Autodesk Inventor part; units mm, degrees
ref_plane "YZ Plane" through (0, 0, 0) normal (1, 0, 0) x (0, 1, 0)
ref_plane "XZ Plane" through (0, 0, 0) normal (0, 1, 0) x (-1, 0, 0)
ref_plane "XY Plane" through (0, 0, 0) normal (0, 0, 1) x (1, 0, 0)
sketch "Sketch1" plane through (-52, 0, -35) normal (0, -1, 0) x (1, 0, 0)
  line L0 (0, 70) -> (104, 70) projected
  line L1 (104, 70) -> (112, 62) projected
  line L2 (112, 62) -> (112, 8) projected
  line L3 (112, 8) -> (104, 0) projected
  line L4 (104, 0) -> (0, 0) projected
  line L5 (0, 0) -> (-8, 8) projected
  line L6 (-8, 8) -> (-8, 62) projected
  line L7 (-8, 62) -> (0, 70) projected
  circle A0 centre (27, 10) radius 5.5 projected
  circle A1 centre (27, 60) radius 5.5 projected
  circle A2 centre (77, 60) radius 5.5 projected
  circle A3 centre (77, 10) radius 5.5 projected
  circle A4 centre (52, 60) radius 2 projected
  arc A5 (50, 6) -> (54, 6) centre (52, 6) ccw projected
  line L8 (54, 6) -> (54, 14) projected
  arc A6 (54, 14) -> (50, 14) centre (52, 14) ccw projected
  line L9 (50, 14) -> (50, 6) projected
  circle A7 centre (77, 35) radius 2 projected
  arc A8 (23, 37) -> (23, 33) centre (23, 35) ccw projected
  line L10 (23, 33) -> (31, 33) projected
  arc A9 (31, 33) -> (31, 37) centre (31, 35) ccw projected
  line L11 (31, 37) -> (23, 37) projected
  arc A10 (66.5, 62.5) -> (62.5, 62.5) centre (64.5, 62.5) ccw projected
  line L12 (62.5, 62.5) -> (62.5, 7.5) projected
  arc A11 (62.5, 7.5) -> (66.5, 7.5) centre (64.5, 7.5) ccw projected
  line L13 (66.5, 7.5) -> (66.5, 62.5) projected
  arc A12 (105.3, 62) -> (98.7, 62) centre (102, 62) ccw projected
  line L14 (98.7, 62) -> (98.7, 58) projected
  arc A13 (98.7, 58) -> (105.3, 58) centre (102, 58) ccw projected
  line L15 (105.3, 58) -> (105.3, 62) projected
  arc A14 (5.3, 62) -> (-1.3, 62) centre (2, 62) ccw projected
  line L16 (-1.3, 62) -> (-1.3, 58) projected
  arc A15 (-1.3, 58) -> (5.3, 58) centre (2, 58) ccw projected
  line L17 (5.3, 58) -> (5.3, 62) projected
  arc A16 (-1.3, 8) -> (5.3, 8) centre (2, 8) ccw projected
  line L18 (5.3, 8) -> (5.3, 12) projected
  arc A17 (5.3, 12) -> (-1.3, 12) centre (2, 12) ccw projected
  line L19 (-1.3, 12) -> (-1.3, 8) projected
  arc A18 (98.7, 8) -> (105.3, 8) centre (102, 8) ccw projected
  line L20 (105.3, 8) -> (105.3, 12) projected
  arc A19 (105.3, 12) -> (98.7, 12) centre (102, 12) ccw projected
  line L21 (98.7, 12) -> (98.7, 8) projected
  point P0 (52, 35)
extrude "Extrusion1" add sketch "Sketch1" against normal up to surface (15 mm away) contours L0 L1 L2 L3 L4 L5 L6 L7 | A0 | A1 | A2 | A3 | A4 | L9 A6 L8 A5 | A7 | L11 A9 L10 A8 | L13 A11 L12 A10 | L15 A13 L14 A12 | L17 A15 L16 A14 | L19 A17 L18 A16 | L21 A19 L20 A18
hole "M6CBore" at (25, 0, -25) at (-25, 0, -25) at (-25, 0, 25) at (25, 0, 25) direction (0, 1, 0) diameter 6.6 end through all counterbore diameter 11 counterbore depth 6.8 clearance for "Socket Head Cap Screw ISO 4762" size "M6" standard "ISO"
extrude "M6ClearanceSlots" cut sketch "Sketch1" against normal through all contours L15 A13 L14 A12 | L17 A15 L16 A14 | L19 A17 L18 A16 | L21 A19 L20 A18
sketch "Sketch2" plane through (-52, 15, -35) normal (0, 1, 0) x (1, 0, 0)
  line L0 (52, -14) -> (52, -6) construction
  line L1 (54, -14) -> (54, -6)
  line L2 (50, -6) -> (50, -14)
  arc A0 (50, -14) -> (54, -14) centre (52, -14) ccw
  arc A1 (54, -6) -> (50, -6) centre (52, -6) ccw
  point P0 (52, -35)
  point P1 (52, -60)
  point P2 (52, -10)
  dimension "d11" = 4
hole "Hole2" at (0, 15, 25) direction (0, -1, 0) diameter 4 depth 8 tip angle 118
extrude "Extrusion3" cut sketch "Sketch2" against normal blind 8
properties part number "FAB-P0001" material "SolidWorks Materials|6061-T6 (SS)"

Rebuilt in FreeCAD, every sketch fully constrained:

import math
import FreeCAD as App
import Part
import Sketcher
from FreeCAD import Vector

doc = App.newDocument("Part")
body = doc.addObject("PartDesign::Body", "Body")

# Sketch on XZ plane
sketch1 = body.newObject("Sketcher::SketchObject", "Sketch")
sketch1.AttachmentSupport = (doc.getObject("XZ_Plane"), [""])
sketch1.MapMode = "FlatFace"
sketch1.addGeometry([
    Part.LineSegment(Vector(52, 35, 0), Vector(-52, 35, 0)),  # 0
    Part.LineSegment(Vector(-52, 35, 0), Vector(-60, 27, 0)),  # 1
    Part.LineSegment(Vector(-60, 27, 0), Vector(-60, -27, 0)),  # 2
    Part.LineSegment(Vector(-60, -27, 0), Vector(-52, -35, 0)),  # 3
    Part.LineSegment(Vector(-52, -35, 0), Vector(52, -35, 0)),  # 4
    Part.LineSegment(Vector(52, -35, 0), Vector(60, -27, 0)),  # 5
    Part.LineSegment(Vector(60, -27, 0), Vector(60, 27, 0)),  # 6
    Part.LineSegment(Vector(60, 27, 0), Vector(52, 35, 0)),  # 7
], False)
sketch1.addConstraint([
    Sketcher.Constraint("Coincident", 0, 2, 1, 1),
    Sketcher.Constraint("Coincident", 1, 2, 2, 1),
    Sketcher.Constraint("Coincident", 2, 2, 3, 1),
    Sketcher.Constraint("Coincident", 3, 2, 4, 1),
    Sketcher.Constraint("Coincident", 4, 2, 5, 1),
    Sketcher.Constraint("Coincident", 5, 2, 6, 1),
    Sketcher.Constraint("Coincident", 6, 2, 7, 1),
    Sketcher.Constraint("Coincident", 7, 2, 0, 1),
    Sketcher.Constraint("Horizontal", 0),
    Sketcher.Constraint("Vertical", 2),
    Sketcher.Constraint("Horizontal", 4),
    Sketcher.Constraint("Vertical", 6),
    Sketcher.Constraint("Symmetric", 0, 2, 4, 2, -1, 1),
    Sketcher.Constraint("Symmetric", 1, 2, 5, 2, -1, 1),
    Sketcher.Constraint("Perpendicular", 1, 3),
    Sketcher.Constraint("Perpendicular", 5, 7),
    Sketcher.Constraint("Horizontal", 2, 2, 5, 2),
    Sketcher.Constraint("Horizontal", 1, 2, 6, 2),
    Sketcher.Constraint("Vertical", 0, 2, 3, 2),
    Sketcher.Constraint("DistanceX", 0, 2, 0, 1, 104.0),
    Sketcher.Constraint("DistanceY", 2, 2, 2, 1, 54.0),
    Sketcher.Constraint("DistanceY", -1, 1, 0, 2, 35.0),
])
pad1 = body.newObject("PartDesign::Pad", "Pad")
pad1.Profile = sketch1
pad1.Length = 15
pad1.Reversed = True

# Sketch on XZ plane
sketch2 = body.newObject("Sketcher::SketchObject", "Sketch001")
sketch2.AttachmentSupport = (doc.getObject("XZ_Plane"), [""])
sketch2.MapMode = "FlatFace"
sketch2.addGeometry([
    Part.Circle(Vector(25, -25, 0), Vector(0, 0, 1), 3.3),
    Part.Circle(Vector(-25, -25, 0), Vector(0, 0, 1), 3.3),
    Part.Circle(Vector(-25, 25, 0), Vector(0, 0, 1), 3.3),
    Part.Circle(Vector(25, 25, 0), Vector(0, 0, 1), 3.3),
], False)
sketch2.addConstraint([
    Sketcher.Constraint("Equal", 0, 1),
    Sketcher.Constraint("Equal", 1, 2),
    Sketcher.Constraint("Equal", 2, 3),
    Sketcher.Constraint("Symmetric", 0, 3, 2, 3, -1, 1),
    Sketcher.Constraint("Symmetric", 1, 3, 3, 3, -1, 1),
    Sketcher.Constraint("Symmetric", 0, 3, 1, 3, -2),
    Sketcher.Constraint("Diameter", 0, 6.6),
    Sketcher.Constraint("DistanceX", -1, 1, 0, 3, 25.0),
    Sketcher.Constraint("DistanceY", 0, 3, -1, 1, 25.0),
])
doc.recompute()
hole = body.newObject("PartDesign::Hole", "Hole")
hole.Profile = sketch2
hole.ThreadType = "None"
hole.Diameter = 6.6
hole.DepthType = "ThroughAll"
hole.HoleCutType = "Counterbore"
hole.HoleCutDiameter = 11
hole.HoleCutDepth = 6.8

# Sketch on XZ plane
sketch3 = body.newObject("Sketcher::SketchObject", "Sketch002")
sketch3.AttachmentSupport = (doc.getObject("XZ_Plane"), [""])
sketch3.MapMode = "FlatFace"
sketch3.addGeometry([
    Part.LineSegment(Vector(53.3, 23, 0), Vector(53.3, 27, 0)),  # 0
    Part.ArcOfCircle(Part.Circle(Vector(50, 27, 0), Vector(0, 0, 1), 3.3), math.radians(0), math.radians(180)),  # 1
    Part.LineSegment(Vector(46.7, 27, 0), Vector(46.7, 23, 0)),  # 2
    Part.ArcOfCircle(Part.Circle(Vector(50, 23, 0), Vector(0, 0, 1), 3.3), math.radians(180), math.radians(360)),  # 3
    Part.LineSegment(Vector(-46.7, 23, 0), Vector(-46.7, 27, 0)),  # 4
    Part.ArcOfCircle(Part.Circle(Vector(-50, 27, 0), Vector(0, 0, 1), 3.3), math.radians(0), math.radians(180)),  # 5
    Part.LineSegment(Vector(-53.3, 27, 0), Vector(-53.3, 23, 0)),  # 6
    Part.ArcOfCircle(Part.Circle(Vector(-50, 23, 0), Vector(0, 0, 1), 3.3), math.radians(180), math.radians(360)),  # 7
    Part.LineSegment(Vector(-53.3, -23, 0), Vector(-53.3, -27, 0)),  # 8
    Part.ArcOfCircle(Part.Circle(Vector(-50, -27, 0), Vector(0, 0, 1), 3.3), math.radians(180), math.radians(360)),  # 9
    Part.LineSegment(Vector(-46.7, -27, 0), Vector(-46.7, -23, 0)),  # 10
    Part.ArcOfCircle(Part.Circle(Vector(-50, -23, 0), Vector(0, 0, 1), 3.3), math.radians(0), math.radians(180)),  # 11
    Part.LineSegment(Vector(46.7, -23, 0), Vector(46.7, -27, 0)),  # 12
    Part.ArcOfCircle(Part.Circle(Vector(50, -27, 0), Vector(0, 0, 1), 3.3), math.radians(180), math.radians(360)),  # 13
    Part.LineSegment(Vector(53.3, -27, 0), Vector(53.3, -23, 0)),  # 14
    Part.ArcOfCircle(Part.Circle(Vector(50, -23, 0), Vector(0, 0, 1), 3.3), math.radians(0), math.radians(180)),  # 15
], False)
sketch3.addConstraint([
    Sketcher.Constraint("Tangent", 0, 2, 1, 1),
    Sketcher.Constraint("Tangent", 1, 2, 2, 1),
    Sketcher.Constraint("Tangent", 2, 2, 3, 1),
    Sketcher.Constraint("Tangent", 3, 2, 0, 1),
    Sketcher.Constraint("Tangent", 4, 2, 5, 1),
    Sketcher.Constraint("Tangent", 5, 2, 6, 1),
    Sketcher.Constraint("Tangent", 6, 2, 7, 1),
    Sketcher.Constraint("Tangent", 7, 2, 4, 1),
    Sketcher.Constraint("Tangent", 8, 2, 9, 1),
    Sketcher.Constraint("Tangent", 9, 2, 10, 1),
    Sketcher.Constraint("Tangent", 10, 2, 11, 1),
    Sketcher.Constraint("Tangent", 11, 2, 8, 1),
    Sketcher.Constraint("Tangent", 12, 2, 13, 1),
    Sketcher.Constraint("Tangent", 13, 2, 14, 1),
    Sketcher.Constraint("Tangent", 14, 2, 15, 1),
    Sketcher.Constraint("Tangent", 15, 2, 12, 1),
    Sketcher.Constraint("Vertical", 0),
    Sketcher.Constraint("Vertical", 2),
    Sketcher.Constraint("Vertical", 4),
    Sketcher.Constraint("Vertical", 6),
    Sketcher.Constraint("Vertical", 8),
    Sketcher.Constraint("Vertical", 10),
    Sketcher.Constraint("Vertical", 12),
    Sketcher.Constraint("Vertical", 14),
    Sketcher.Constraint("Equal", 3, 5),
    Sketcher.Constraint("Equal", 7, 9),
    Sketcher.Constraint("Equal", 11, 13),
    Sketcher.Constraint("Symmetric", 1, 3, 9, 3, -1, 1),
    Sketcher.Constraint("Symmetric", 5, 3, 13, 3, -1, 1),
    Sketcher.Constraint("Symmetric", 1, 3, 5, 3, -2),
    Sketcher.Constraint("Horizontal", 3, 3, 7, 3),
    Sketcher.Constraint("Horizontal", 11, 3, 15, 3),
    Sketcher.Constraint("Equal", 6, 8),
    Sketcher.Constraint("Radius", 1, 3.3),
    Sketcher.Constraint("DistanceY", 0, 1, 0, 2, 4.0),
    Sketcher.Constraint("DistanceX", -1, 1, 1, 3, 50.0),
    Sketcher.Constraint("DistanceY", -1, 1, 1, 3, 27.0),
])
pocket1 = body.newObject("PartDesign::Pocket", "Pocket")
pocket1.Profile = sketch3
pocket1.Type = "ThroughAll"

# Sketch on XZ plane
sketch4 = body.newObject("Sketcher::SketchObject", "Sketch003")
sketch4.AttachmentSupport = (doc.getObject("XZ_Plane"), [""])
sketch4.MapMode = "FlatFace"
sketch4.AttachmentOffset = App.Placement(Vector(0, 0, -15), App.Rotation())
sketch4.addGeometry(Part.Circle(Vector(0, 25, 0), Vector(0, 0, 1), 2), False)
sketch4.addConstraint([
    Sketcher.Constraint("PointOnObject", 0, 3, -2),
    Sketcher.Constraint("Diameter", 0, 4.0),
    Sketcher.Constraint("DistanceY", -1, 1, 0, 3, 25.0),
])
doc.recompute()
hole2 = body.newObject("PartDesign::Hole", "Hole001")
hole2.Profile = sketch4
hole2.ThreadType = "None"
hole2.Diameter = 4
hole2.DepthType = "Dimension"
hole2.Depth = 8
hole2.DrillPoint = "Angled"
hole2.DrillPointAngle = 118
hole2.Reversed = True

# Sketch on XZ plane
sketch5 = body.newObject("Sketcher::SketchObject", "Sketch004")
sketch5.AttachmentSupport = (doc.getObject("XZ_Plane"), [""])
sketch5.MapMode = "FlatFace"
sketch5.AttachmentOffset = App.Placement(Vector(0, 0, -15), App.Rotation())
sketch5.addGeometry([
    Part.ArcOfCircle(Part.Circle(Vector(0, -21, 0), Vector(0, 0, 1), 2), math.radians(0), math.radians(180)),
    Part.LineSegment(Vector(2, -21, 0), Vector(2, -29, 0)),
    Part.ArcOfCircle(Part.Circle(Vector(0, -29, 0), Vector(0, 0, 1), 2), math.radians(180), math.radians(360)),
    Part.LineSegment(Vector(-2, -29, 0), Vector(-2, -21, 0)),
], False)
sketch5.addConstraint([
    Sketcher.Constraint("Tangent", 0, 1, 1, 1),
    Sketcher.Constraint("Tangent", 1, 2, 2, 2),
    Sketcher.Constraint("Tangent", 2, 1, 3, 1),
    Sketcher.Constraint("Tangent", 3, 2, 0, 2),
    Sketcher.Constraint("Vertical", 1),
    Sketcher.Constraint("Vertical", 3),
    Sketcher.Constraint("PointOnObject", 0, 3, -2),
    Sketcher.Constraint("Radius", 0, 2.0),
    Sketcher.Constraint("DistanceY", 1, 2, 1, 1, 8.0),
    Sketcher.Constraint("DistanceY", 0, 3, -1, 1, 21.0),
])
pocket2 = body.newObject("PartDesign::Pocket", "Pocket001")
pocket2.Profile = sketch5
pocket2.Length = 8
pocket2.Reversed = True

doc.recompute()
